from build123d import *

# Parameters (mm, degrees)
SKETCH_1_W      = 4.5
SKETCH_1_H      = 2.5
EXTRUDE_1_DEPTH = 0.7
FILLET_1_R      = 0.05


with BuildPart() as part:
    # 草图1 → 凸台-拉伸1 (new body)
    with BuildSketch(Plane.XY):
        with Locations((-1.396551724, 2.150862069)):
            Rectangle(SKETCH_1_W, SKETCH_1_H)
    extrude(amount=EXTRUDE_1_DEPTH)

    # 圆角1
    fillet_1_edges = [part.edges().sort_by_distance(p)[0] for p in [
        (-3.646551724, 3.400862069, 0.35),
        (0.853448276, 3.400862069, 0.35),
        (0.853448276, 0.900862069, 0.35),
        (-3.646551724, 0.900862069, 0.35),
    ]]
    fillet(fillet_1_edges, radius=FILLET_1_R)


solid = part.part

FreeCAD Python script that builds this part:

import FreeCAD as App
import Part
import Sketcher
from FreeCAD import Vector
Q = App.Units.Quantity


def edges_at(feature, points):
    """Names of the edges that pass closest to the given points."""
    edges = feature.Shape.Edges
    near = lambda p: min(range(len(edges)), key=lambda i: edges[i].distToShape(Part.Vertex(*p))[0])
    return sorted({f"Edge{near(p) + 1}" for p in points})


def add_polygon(sketch, points):
    """Adds a closed chain of lines whose ends are joined by coincident constraints."""
    first, n = sketch.GeometryCount, len(points)
    for a, b in zip(points, points[1:] + points[:1]):
        sketch.addGeometry(Part.LineSegment(App.Vector(*a, 0), App.Vector(*b, 0)), False)
    for i in range(n):
        sketch.addConstraint(Sketcher.Constraint("Coincident", first + i, 2, first + (i + 1) % n, 1))

doc = App.newDocument("Part")
body = doc.addObject("PartDesign::Body", "Body")

sketch1 = doc.addObject("Sketcher::SketchObject", "Sketch")
body.addObject(sketch1)
sketch1.AttachmentSupport = (doc.XY_Plane, [""])
sketch1.MapMode = "FlatFace"
add_polygon(sketch1, [(-3.646552, 3.400862), (-3.646552, 0.900862), (0.853448, 0.900862), (0.853448, 3.400862)])
sketch1.addConstraint(Sketcher.Constraint("Vertical", 0))
sketch1.addConstraint(Sketcher.Constraint("Horizontal", 1))
sketch1.addConstraint(Sketcher.Constraint("Vertical", 2))
sketch1.addConstraint(Sketcher.Constraint("Horizontal", 3))
sketch1.addConstraint(Sketcher.Constraint("DistanceX", 1, 1, 1, 2, Q("4.5 mm")))
sketch1.addConstraint(Sketcher.Constraint("DistanceY", 0, 2, 0, 1, Q("2.5 mm")))
sketch1.addConstraint(Sketcher.Constraint("DistanceX", 0, 2, -1, 1, Q("3.646552 mm")))
sketch1.addConstraint(Sketcher.Constraint("DistanceY", -1, 1, 0, 2, Q("0.900862 mm")))
pad1 = doc.addObject("PartDesign::Pad", "Pad")
body.addObject(pad1)
pad1.Profile = sketch1
pad1.Length = 0.7
doc.recompute()

fillet = doc.addObject("PartDesign::Fillet", "Fillet")
body.addObject(fillet)
fillet.Base = (pad1, edges_at(pad1, [
    (-3.647, 3.401, 0.35),
    (0.853, 3.401, 0.35),
    (0.853, 0.901, 0.35),
    (-3.647, 0.901, 0.35),
]))
fillet.Radius = 0.05

doc.recompute()
